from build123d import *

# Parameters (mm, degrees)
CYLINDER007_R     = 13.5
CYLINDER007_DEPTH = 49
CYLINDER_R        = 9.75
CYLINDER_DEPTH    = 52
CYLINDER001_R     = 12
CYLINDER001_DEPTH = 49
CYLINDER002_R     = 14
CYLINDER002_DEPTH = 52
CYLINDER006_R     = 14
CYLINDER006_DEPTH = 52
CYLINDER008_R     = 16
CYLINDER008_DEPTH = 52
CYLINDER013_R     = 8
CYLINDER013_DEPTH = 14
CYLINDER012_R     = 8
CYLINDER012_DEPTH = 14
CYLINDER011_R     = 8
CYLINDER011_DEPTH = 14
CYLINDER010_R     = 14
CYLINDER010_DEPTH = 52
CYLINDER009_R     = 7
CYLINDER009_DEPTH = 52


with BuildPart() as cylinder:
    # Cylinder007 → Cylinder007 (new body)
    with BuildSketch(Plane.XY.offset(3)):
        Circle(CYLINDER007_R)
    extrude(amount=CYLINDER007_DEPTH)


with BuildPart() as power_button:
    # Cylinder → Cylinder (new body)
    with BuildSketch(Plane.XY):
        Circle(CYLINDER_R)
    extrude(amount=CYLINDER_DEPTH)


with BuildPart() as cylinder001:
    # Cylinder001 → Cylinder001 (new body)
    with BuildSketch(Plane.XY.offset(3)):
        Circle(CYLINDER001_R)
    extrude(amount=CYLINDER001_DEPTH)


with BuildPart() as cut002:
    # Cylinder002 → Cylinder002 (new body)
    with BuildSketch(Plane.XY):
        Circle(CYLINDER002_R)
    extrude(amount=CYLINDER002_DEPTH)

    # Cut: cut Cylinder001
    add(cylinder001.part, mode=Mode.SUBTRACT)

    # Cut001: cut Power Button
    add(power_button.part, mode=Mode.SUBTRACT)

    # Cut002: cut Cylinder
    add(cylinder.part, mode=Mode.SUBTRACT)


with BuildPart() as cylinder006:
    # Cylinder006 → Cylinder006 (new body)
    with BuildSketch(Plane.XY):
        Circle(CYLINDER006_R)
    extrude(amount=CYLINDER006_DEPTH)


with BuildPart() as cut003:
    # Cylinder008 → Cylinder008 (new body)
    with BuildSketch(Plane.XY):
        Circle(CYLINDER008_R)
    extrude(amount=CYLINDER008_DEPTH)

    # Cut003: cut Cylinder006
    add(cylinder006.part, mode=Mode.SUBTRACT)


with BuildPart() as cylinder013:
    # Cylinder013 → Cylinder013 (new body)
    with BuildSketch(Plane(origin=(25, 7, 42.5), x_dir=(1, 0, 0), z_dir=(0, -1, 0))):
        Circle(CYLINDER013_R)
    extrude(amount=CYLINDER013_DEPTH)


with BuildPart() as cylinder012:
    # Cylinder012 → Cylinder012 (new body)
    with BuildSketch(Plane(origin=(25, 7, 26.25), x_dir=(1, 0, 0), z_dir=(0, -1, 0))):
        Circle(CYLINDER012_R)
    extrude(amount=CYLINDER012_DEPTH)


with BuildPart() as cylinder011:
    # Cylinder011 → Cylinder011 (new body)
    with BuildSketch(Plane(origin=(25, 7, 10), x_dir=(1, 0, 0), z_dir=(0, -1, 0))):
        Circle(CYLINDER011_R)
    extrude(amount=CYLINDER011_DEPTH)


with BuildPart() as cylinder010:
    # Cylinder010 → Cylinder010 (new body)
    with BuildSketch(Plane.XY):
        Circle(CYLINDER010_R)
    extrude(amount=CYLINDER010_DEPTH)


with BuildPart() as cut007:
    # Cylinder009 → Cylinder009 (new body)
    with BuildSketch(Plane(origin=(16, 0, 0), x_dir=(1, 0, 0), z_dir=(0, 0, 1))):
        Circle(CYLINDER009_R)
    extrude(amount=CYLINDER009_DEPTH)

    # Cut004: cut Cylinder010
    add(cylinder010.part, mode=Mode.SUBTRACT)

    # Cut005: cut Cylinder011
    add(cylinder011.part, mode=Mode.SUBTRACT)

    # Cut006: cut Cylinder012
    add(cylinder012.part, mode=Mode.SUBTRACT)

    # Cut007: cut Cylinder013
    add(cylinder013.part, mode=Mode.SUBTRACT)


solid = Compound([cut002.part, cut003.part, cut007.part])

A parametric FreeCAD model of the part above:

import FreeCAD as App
import Part
import Sketcher

doc = App.newDocument("Part")
params = doc.addObject("Spreadsheet::Sheet", "Params")
for row, (alias, value) in enumerate([
    ("sketch1_diameter", "27 mm"),
    ("pad1_length", "49 mm"),
    ("sketch2_diameter", "19.5 mm"),
    ("pad2_length", "52 mm"),
    ("sketch3_diameter", "24 mm"),
    ("pad3_length", "49 mm"),
    ("sketch4_diameter", "28 mm"),
    ("pad4_length", "52 mm"),
    ("sketch5_diameter", "28 mm"),
    ("pad5_length", "52 mm"),
    ("sketch6_diameter", "32 mm"),
    ("pad6_length", "52 mm"),
    ("sketch7_diameter", "16 mm"),
    ("pad7_length", "14 mm"),
    ("sketch8_diameter", "16 mm"),
    ("pad8_length", "14 mm"),
    ("sketch9_diameter", "16 mm"),
    ("pad9_length", "14 mm"),
    ("sketch10_diameter", "28 mm"),
    ("pad10_length", "52 mm"),
    ("sketch11_diameter", "14 mm"),
    ("pad11_length", "52 mm"),
], start=1):
    params.set(f"A{row}", alias)
    params.set(f"B{row}", "=" + value)
    params.setAlias(f"B{row}", alias)

body = doc.addObject("PartDesign::Body", "Body")

sketch1 = doc.addObject("Sketcher::SketchObject", "Sketch")
body.addObject(sketch1)
sketch1.AttachmentSupport = (doc.XY_Plane, [""])
sketch1.MapMode = "FlatFace"
sketch1.AttachmentOffset = App.Placement(App.Vector(0, 0, 3), App.Rotation())
sketch1.addGeometry(Part.Circle(App.Vector(0, 0, 0), App.Vector(0, 0, 1), 13.5), False)
sketch1.addConstraint([
    Sketcher.Constraint("Coincident", 0, 3, -1, 1),
    Sketcher.Constraint("Diameter", 0, 27.0),
])
sketch1.setExpression("Constraints[1]", "Params.sketch1_diameter")
pad1 = doc.addObject("PartDesign::Pad", "Pad")
body.addObject(pad1)
pad1.Profile = sketch1
pad1.setExpression("Length", "Params.pad1_length")
body2 = doc.addObject("PartDesign::Body", "Body001")

sketch2 = doc.addObject("Sketcher::SketchObject", "Sketch001")
body2.addObject(sketch2)
sketch2.AttachmentSupport = (doc.getObject("XY_Plane001"), [""])
sketch2.MapMode = "FlatFace"
sketch2.addGeometry(Part.Circle(App.Vector(0, 0, 0), App.Vector(0, 0, 1), 9.75), False)
sketch2.addConstraint([
    Sketcher.Constraint("Coincident", 0, 3, -1, 1),
    Sketcher.Constraint("Diameter", 0, 19.5),
])
sketch2.setExpression("Constraints[1]", "Params.sketch2_diameter")
pad2 = doc.addObject("PartDesign::Pad", "Pad001")
body2.addObject(pad2)
pad2.Profile = sketch2
pad2.setExpression("Length", "Params.pad2_length")
body3 = doc.addObject("PartDesign::Body", "Body002")

sketch3 = doc.addObject("Sketcher::SketchObject", "Sketch002")
body3.addObject(sketch3)
sketch3.AttachmentSupport = (doc.getObject("XY_Plane002"), [""])
sketch3.MapMode = "FlatFace"
sketch3.AttachmentOffset = App.Placement(App.Vector(0, 0, 3), App.Rotation())
sketch3.addGeometry(Part.Circle(App.Vector(0, 0, 0), App.Vector(0, 0, 1), 12), False)
sketch3.addConstraint([
    Sketcher.Constraint("Coincident", 0, 3, -1, 1),
    Sketcher.Constraint("Diameter", 0, 24.0),
])
sketch3.setExpression("Constraints[1]", "Params.sketch3_diameter")
pad3 = doc.addObject("PartDesign::Pad", "Pad002")
body3.addObject(pad3)
pad3.Profile = sketch3
pad3.setExpression("Length", "Params.pad3_length")
body4 = doc.addObject("PartDesign::Body", "Body003")

sketch4 = doc.addObject("Sketcher::SketchObject", "Sketch003")
body4.addObject(sketch4)
sketch4.AttachmentSupport = (doc.getObject("XY_Plane003"), [""])
sketch4.MapMode = "FlatFace"
sketch4.addGeometry(Part.Circle(App.Vector(0, 0, 0), App.Vector(0, 0, 1), 14), False)
sketch4.addConstraint([
    Sketcher.Constraint("Coincident", 0, 3, -1, 1),
    Sketcher.Constraint("Diameter", 0, 28.0),
])
sketch4.setExpression("Constraints[1]", "Params.sketch4_diameter")
pad4 = doc.addObject("PartDesign::Pad", "Pad003")
body4.addObject(pad4)
pad4.Profile = sketch4
pad4.setExpression("Length", "Params.pad4_length")
doc.recompute()

boolean = doc.addObject("PartDesign::Boolean", "Boolean")
body4.addObject(boolean)
boolean.Type = "Cut"
boolean.addObjects([body3])
doc.recompute()

boolean2 = doc.addObject("PartDesign::Boolean", "Boolean001")
body4.addObject(boolean2)
boolean2.Type = "Cut"
boolean2.addObjects([body2])
doc.recompute()

boolean3 = doc.addObject("PartDesign::Boolean", "Boolean002")
body4.addObject(boolean3)
boolean3.Type = "Cut"
boolean3.addObjects([body])
body5 = doc.addObject("PartDesign::Body", "Body004")

sketch5 = doc.addObject("Sketcher::SketchObject", "Sketch004")
body5.addObject(sketch5)
sketch5.AttachmentSupport = (doc.getObject("XY_Plane004"), [""])
sketch5.MapMode = "FlatFace"
sketch5.addGeometry(Part.Circle(App.Vector(0, 0, 0), App.Vector(0, 0, 1), 14), False)
sketch5.addConstraint([
    Sketcher.Constraint("Coincident", 0, 3, -1, 1),
    Sketcher.Constraint("Diameter", 0, 28.0),
])
sketch5.setExpression("Constraints[1]", "Params.sketch5_diameter")
pad5 = doc.addObject("PartDesign::Pad", "Pad004")
body5.addObject(pad5)
pad5.Profile = sketch5
pad5.setExpression("Length", "Params.pad5_length")
body6 = doc.addObject("PartDesign::Body", "Body005")

sketch6 = doc.addObject("Sketcher::SketchObject", "Sketch005")
body6.addObject(sketch6)
sketch6.AttachmentSupport = (doc.getObject("XY_Plane005"), [""])
sketch6.MapMode = "FlatFace"
sketch6.addGeometry(Part.Circle(App.Vector(0, 0, 0), App.Vector(0, 0, 1), 16), False)
sketch6.addConstraint([
    Sketcher.Constraint("Coincident", 0, 3, -1, 1),
    Sketcher.Constraint("Diameter", 0, 32.0),
])
sketch6.setExpression("Constraints[1]", "Params.sketch6_diameter")
pad6 = doc.addObject("PartDesign::Pad", "Pad005")
body6.addObject(pad6)
pad6.Profile = sketch6
pad6.setExpression("Length", "Params.pad6_length")
doc.recompute()

boolean4 = doc.addObject("PartDesign::Boolean", "Boolean003")
body6.addObject(boolean4)
boolean4.Type = "Cut"
boolean4.addObjects([body5])
body7 = doc.addObject("PartDesign::Body", "Body006")

sketch7 = doc.addObject("Sketcher::SketchObject", "Sketch006")
body7.addObject(sketch7)
sketch7.AttachmentSupport = (doc.getObject("XZ_Plane006"), [""])
sketch7.MapMode = "FlatFace"
sketch7.AttachmentOffset = App.Placement(App.Vector(0, 0, -7), App.Rotation())
sketch7.addGeometry(Part.Circle(App.Vector(25, 42.5, 0), App.Vector(0, 0, 1), 8), False)
sketch7.addConstraint([
    Sketcher.Constraint("Diameter", 0, 16.0),
    Sketcher.Constraint("DistanceX", -1, 1, 0, 3, 25.0),
    Sketcher.Constraint("DistanceY", -1, 1, 0, 3, 42.5),
])
sketch7.setExpression("Constraints[0]", "Params.sketch7_diameter")
pad7 = doc.addObject("PartDesign::Pad", "Pad006")
body7.addObject(pad7)
pad7.Profile = sketch7
pad7.setExpression("Length", "Params.pad7_length")
body8 = doc.addObject("PartDesign::Body", "Body007")

sketch8 = doc.addObject("Sketcher::SketchObject", "Sketch007")
body8.addObject(sketch8)
sketch8.AttachmentSupport = (doc.getObject("XZ_Plane007"), [""])
sketch8.MapMode = "FlatFace"
sketch8.AttachmentOffset = App.Placement(App.Vector(0, 0, -7), App.Rotation())
sketch8.addGeometry(Part.Circle(App.Vector(25, 26.25, 0), App.Vector(0, 0, 1), 8), False)
sketch8.addConstraint([
    Sketcher.Constraint("Diameter", 0, 16.0),
    Sketcher.Constraint("DistanceX", -1, 1, 0, 3, 25.0),
    Sketcher.Constraint("DistanceY", -1, 1, 0, 3, 26.25),
])
sketch8.setExpression("Constraints[0]", "Params.sketch8_diameter")
pad8 = doc.addObject("PartDesign::Pad", "Pad007")
body8.addObject(pad8)
pad8.Profile = sketch8
pad8.setExpression("Length", "Params.pad8_length")
body9 = doc.addObject("PartDesign::Body", "Body008")

sketch9 = doc.addObject("Sketcher::SketchObject", "Sketch008")
body9.addObject(sketch9)
sketch9.AttachmentSupport = (doc.getObject("XZ_Plane008"), [""])
sketch9.MapMode = "FlatFace"
sketch9.AttachmentOffset = App.Placement(App.Vector(0, 0, -7), App.Rotation())
sketch9.addGeometry(Part.Circle(App.Vector(25, 10, 0), App.Vector(0, 0, 1), 8), False)
sketch9.addConstraint([
    Sketcher.Constraint("Diameter", 0, 16.0),
    Sketcher.Constraint("DistanceX", -1, 1, 0, 3, 25.0),
    Sketcher.Constraint("DistanceY", -1, 1, 0, 3, 10.0),
])
sketch9.setExpression("Constraints[0]", "Params.sketch9_diameter")
pad9 = doc.addObject("PartDesign::Pad", "Pad008")
body9.addObject(pad9)
pad9.Profile = sketch9
pad9.setExpression("Length", "Params.pad9_length")
body10 = doc.addObject("PartDesign::Body", "Body009")

sketch10 = doc.addObject("Sketcher::SketchObject", "Sketch009")
body10.addObject(sketch10)
sketch10.AttachmentSupport = (doc.getObject("XY_Plane009"), [""])
sketch10.MapMode = "FlatFace"
sketch10.addGeometry(Part.Circle(App.Vector(0, 0, 0), App.Vector(0, 0, 1), 14), False)
sketch10.addConstraint([
    Sketcher.Constraint("Coincident", 0, 3, -1, 1),
    Sketcher.Constraint("Diameter", 0, 28.0),
])
sketch10.setExpression("Constraints[1]", "Params.sketch10_diameter")
pad10 = doc.addObject("PartDesign::Pad", "Pad009")
body10.addObject(pad10)
pad10.Profile = sketch10
pad10.setExpression("Length", "Params.pad10_length")
body11 = doc.addObject("PartDesign::Body", "Body010")

sketch11 = doc.addObject("Sketcher::SketchObject", "Sketch010")
body11.addObject(sketch11)
sketch11.AttachmentSupport = (doc.getObject("XY_Plane010"), [""])
sketch11.MapMode = "FlatFace"
sketch11.addGeometry(Part.Circle(App.Vector(16, 0, 0), App.Vector(0, 0, 1), 7), False)
sketch11.addConstraint([
    Sketcher.Constraint("PointOnObject", 0, 3, -1),
    Sketcher.Constraint("Diameter", 0, 14.0),
    Sketcher.Constraint("DistanceX", -1, 1, 0, 3, 16.0),
])
sketch11.setExpression("Constraints[1]", "Params.sketch11_diameter")
pad11 = doc.addObject("PartDesign::Pad", "Pad010")
body11.addObject(pad11)
pad11.Profile = sketch11
pad11.setExpression("Length", "Params.pad11_length")
doc.recompute()

boolean5 = doc.addObject("PartDesign::Boolean", "Boolean004")
body11.addObject(boolean5)
boolean5.Type = "Cut"
boolean5.addObjects([body10])
doc.recompute()

boolean6 = doc.addObject("PartDesign::Boolean", "Boolean005")
body11.addObject(boolean6)
boolean6.Type = "Cut"
boolean6.addObjects([body9])
doc.recompute()

boolean7 = doc.addObject("PartDesign::Boolean", "Boolean006")
body11.addObject(boolean7)
boolean7.Type = "Cut"
boolean7.addObjects([body8])
doc.recompute()

boolean8 = doc.addObject("PartDesign::Boolean", "Boolean007")
body11.addObject(boolean8)
boolean8.Type = "Cut"
boolean8.addObjects([body7])

doc.recompute()
